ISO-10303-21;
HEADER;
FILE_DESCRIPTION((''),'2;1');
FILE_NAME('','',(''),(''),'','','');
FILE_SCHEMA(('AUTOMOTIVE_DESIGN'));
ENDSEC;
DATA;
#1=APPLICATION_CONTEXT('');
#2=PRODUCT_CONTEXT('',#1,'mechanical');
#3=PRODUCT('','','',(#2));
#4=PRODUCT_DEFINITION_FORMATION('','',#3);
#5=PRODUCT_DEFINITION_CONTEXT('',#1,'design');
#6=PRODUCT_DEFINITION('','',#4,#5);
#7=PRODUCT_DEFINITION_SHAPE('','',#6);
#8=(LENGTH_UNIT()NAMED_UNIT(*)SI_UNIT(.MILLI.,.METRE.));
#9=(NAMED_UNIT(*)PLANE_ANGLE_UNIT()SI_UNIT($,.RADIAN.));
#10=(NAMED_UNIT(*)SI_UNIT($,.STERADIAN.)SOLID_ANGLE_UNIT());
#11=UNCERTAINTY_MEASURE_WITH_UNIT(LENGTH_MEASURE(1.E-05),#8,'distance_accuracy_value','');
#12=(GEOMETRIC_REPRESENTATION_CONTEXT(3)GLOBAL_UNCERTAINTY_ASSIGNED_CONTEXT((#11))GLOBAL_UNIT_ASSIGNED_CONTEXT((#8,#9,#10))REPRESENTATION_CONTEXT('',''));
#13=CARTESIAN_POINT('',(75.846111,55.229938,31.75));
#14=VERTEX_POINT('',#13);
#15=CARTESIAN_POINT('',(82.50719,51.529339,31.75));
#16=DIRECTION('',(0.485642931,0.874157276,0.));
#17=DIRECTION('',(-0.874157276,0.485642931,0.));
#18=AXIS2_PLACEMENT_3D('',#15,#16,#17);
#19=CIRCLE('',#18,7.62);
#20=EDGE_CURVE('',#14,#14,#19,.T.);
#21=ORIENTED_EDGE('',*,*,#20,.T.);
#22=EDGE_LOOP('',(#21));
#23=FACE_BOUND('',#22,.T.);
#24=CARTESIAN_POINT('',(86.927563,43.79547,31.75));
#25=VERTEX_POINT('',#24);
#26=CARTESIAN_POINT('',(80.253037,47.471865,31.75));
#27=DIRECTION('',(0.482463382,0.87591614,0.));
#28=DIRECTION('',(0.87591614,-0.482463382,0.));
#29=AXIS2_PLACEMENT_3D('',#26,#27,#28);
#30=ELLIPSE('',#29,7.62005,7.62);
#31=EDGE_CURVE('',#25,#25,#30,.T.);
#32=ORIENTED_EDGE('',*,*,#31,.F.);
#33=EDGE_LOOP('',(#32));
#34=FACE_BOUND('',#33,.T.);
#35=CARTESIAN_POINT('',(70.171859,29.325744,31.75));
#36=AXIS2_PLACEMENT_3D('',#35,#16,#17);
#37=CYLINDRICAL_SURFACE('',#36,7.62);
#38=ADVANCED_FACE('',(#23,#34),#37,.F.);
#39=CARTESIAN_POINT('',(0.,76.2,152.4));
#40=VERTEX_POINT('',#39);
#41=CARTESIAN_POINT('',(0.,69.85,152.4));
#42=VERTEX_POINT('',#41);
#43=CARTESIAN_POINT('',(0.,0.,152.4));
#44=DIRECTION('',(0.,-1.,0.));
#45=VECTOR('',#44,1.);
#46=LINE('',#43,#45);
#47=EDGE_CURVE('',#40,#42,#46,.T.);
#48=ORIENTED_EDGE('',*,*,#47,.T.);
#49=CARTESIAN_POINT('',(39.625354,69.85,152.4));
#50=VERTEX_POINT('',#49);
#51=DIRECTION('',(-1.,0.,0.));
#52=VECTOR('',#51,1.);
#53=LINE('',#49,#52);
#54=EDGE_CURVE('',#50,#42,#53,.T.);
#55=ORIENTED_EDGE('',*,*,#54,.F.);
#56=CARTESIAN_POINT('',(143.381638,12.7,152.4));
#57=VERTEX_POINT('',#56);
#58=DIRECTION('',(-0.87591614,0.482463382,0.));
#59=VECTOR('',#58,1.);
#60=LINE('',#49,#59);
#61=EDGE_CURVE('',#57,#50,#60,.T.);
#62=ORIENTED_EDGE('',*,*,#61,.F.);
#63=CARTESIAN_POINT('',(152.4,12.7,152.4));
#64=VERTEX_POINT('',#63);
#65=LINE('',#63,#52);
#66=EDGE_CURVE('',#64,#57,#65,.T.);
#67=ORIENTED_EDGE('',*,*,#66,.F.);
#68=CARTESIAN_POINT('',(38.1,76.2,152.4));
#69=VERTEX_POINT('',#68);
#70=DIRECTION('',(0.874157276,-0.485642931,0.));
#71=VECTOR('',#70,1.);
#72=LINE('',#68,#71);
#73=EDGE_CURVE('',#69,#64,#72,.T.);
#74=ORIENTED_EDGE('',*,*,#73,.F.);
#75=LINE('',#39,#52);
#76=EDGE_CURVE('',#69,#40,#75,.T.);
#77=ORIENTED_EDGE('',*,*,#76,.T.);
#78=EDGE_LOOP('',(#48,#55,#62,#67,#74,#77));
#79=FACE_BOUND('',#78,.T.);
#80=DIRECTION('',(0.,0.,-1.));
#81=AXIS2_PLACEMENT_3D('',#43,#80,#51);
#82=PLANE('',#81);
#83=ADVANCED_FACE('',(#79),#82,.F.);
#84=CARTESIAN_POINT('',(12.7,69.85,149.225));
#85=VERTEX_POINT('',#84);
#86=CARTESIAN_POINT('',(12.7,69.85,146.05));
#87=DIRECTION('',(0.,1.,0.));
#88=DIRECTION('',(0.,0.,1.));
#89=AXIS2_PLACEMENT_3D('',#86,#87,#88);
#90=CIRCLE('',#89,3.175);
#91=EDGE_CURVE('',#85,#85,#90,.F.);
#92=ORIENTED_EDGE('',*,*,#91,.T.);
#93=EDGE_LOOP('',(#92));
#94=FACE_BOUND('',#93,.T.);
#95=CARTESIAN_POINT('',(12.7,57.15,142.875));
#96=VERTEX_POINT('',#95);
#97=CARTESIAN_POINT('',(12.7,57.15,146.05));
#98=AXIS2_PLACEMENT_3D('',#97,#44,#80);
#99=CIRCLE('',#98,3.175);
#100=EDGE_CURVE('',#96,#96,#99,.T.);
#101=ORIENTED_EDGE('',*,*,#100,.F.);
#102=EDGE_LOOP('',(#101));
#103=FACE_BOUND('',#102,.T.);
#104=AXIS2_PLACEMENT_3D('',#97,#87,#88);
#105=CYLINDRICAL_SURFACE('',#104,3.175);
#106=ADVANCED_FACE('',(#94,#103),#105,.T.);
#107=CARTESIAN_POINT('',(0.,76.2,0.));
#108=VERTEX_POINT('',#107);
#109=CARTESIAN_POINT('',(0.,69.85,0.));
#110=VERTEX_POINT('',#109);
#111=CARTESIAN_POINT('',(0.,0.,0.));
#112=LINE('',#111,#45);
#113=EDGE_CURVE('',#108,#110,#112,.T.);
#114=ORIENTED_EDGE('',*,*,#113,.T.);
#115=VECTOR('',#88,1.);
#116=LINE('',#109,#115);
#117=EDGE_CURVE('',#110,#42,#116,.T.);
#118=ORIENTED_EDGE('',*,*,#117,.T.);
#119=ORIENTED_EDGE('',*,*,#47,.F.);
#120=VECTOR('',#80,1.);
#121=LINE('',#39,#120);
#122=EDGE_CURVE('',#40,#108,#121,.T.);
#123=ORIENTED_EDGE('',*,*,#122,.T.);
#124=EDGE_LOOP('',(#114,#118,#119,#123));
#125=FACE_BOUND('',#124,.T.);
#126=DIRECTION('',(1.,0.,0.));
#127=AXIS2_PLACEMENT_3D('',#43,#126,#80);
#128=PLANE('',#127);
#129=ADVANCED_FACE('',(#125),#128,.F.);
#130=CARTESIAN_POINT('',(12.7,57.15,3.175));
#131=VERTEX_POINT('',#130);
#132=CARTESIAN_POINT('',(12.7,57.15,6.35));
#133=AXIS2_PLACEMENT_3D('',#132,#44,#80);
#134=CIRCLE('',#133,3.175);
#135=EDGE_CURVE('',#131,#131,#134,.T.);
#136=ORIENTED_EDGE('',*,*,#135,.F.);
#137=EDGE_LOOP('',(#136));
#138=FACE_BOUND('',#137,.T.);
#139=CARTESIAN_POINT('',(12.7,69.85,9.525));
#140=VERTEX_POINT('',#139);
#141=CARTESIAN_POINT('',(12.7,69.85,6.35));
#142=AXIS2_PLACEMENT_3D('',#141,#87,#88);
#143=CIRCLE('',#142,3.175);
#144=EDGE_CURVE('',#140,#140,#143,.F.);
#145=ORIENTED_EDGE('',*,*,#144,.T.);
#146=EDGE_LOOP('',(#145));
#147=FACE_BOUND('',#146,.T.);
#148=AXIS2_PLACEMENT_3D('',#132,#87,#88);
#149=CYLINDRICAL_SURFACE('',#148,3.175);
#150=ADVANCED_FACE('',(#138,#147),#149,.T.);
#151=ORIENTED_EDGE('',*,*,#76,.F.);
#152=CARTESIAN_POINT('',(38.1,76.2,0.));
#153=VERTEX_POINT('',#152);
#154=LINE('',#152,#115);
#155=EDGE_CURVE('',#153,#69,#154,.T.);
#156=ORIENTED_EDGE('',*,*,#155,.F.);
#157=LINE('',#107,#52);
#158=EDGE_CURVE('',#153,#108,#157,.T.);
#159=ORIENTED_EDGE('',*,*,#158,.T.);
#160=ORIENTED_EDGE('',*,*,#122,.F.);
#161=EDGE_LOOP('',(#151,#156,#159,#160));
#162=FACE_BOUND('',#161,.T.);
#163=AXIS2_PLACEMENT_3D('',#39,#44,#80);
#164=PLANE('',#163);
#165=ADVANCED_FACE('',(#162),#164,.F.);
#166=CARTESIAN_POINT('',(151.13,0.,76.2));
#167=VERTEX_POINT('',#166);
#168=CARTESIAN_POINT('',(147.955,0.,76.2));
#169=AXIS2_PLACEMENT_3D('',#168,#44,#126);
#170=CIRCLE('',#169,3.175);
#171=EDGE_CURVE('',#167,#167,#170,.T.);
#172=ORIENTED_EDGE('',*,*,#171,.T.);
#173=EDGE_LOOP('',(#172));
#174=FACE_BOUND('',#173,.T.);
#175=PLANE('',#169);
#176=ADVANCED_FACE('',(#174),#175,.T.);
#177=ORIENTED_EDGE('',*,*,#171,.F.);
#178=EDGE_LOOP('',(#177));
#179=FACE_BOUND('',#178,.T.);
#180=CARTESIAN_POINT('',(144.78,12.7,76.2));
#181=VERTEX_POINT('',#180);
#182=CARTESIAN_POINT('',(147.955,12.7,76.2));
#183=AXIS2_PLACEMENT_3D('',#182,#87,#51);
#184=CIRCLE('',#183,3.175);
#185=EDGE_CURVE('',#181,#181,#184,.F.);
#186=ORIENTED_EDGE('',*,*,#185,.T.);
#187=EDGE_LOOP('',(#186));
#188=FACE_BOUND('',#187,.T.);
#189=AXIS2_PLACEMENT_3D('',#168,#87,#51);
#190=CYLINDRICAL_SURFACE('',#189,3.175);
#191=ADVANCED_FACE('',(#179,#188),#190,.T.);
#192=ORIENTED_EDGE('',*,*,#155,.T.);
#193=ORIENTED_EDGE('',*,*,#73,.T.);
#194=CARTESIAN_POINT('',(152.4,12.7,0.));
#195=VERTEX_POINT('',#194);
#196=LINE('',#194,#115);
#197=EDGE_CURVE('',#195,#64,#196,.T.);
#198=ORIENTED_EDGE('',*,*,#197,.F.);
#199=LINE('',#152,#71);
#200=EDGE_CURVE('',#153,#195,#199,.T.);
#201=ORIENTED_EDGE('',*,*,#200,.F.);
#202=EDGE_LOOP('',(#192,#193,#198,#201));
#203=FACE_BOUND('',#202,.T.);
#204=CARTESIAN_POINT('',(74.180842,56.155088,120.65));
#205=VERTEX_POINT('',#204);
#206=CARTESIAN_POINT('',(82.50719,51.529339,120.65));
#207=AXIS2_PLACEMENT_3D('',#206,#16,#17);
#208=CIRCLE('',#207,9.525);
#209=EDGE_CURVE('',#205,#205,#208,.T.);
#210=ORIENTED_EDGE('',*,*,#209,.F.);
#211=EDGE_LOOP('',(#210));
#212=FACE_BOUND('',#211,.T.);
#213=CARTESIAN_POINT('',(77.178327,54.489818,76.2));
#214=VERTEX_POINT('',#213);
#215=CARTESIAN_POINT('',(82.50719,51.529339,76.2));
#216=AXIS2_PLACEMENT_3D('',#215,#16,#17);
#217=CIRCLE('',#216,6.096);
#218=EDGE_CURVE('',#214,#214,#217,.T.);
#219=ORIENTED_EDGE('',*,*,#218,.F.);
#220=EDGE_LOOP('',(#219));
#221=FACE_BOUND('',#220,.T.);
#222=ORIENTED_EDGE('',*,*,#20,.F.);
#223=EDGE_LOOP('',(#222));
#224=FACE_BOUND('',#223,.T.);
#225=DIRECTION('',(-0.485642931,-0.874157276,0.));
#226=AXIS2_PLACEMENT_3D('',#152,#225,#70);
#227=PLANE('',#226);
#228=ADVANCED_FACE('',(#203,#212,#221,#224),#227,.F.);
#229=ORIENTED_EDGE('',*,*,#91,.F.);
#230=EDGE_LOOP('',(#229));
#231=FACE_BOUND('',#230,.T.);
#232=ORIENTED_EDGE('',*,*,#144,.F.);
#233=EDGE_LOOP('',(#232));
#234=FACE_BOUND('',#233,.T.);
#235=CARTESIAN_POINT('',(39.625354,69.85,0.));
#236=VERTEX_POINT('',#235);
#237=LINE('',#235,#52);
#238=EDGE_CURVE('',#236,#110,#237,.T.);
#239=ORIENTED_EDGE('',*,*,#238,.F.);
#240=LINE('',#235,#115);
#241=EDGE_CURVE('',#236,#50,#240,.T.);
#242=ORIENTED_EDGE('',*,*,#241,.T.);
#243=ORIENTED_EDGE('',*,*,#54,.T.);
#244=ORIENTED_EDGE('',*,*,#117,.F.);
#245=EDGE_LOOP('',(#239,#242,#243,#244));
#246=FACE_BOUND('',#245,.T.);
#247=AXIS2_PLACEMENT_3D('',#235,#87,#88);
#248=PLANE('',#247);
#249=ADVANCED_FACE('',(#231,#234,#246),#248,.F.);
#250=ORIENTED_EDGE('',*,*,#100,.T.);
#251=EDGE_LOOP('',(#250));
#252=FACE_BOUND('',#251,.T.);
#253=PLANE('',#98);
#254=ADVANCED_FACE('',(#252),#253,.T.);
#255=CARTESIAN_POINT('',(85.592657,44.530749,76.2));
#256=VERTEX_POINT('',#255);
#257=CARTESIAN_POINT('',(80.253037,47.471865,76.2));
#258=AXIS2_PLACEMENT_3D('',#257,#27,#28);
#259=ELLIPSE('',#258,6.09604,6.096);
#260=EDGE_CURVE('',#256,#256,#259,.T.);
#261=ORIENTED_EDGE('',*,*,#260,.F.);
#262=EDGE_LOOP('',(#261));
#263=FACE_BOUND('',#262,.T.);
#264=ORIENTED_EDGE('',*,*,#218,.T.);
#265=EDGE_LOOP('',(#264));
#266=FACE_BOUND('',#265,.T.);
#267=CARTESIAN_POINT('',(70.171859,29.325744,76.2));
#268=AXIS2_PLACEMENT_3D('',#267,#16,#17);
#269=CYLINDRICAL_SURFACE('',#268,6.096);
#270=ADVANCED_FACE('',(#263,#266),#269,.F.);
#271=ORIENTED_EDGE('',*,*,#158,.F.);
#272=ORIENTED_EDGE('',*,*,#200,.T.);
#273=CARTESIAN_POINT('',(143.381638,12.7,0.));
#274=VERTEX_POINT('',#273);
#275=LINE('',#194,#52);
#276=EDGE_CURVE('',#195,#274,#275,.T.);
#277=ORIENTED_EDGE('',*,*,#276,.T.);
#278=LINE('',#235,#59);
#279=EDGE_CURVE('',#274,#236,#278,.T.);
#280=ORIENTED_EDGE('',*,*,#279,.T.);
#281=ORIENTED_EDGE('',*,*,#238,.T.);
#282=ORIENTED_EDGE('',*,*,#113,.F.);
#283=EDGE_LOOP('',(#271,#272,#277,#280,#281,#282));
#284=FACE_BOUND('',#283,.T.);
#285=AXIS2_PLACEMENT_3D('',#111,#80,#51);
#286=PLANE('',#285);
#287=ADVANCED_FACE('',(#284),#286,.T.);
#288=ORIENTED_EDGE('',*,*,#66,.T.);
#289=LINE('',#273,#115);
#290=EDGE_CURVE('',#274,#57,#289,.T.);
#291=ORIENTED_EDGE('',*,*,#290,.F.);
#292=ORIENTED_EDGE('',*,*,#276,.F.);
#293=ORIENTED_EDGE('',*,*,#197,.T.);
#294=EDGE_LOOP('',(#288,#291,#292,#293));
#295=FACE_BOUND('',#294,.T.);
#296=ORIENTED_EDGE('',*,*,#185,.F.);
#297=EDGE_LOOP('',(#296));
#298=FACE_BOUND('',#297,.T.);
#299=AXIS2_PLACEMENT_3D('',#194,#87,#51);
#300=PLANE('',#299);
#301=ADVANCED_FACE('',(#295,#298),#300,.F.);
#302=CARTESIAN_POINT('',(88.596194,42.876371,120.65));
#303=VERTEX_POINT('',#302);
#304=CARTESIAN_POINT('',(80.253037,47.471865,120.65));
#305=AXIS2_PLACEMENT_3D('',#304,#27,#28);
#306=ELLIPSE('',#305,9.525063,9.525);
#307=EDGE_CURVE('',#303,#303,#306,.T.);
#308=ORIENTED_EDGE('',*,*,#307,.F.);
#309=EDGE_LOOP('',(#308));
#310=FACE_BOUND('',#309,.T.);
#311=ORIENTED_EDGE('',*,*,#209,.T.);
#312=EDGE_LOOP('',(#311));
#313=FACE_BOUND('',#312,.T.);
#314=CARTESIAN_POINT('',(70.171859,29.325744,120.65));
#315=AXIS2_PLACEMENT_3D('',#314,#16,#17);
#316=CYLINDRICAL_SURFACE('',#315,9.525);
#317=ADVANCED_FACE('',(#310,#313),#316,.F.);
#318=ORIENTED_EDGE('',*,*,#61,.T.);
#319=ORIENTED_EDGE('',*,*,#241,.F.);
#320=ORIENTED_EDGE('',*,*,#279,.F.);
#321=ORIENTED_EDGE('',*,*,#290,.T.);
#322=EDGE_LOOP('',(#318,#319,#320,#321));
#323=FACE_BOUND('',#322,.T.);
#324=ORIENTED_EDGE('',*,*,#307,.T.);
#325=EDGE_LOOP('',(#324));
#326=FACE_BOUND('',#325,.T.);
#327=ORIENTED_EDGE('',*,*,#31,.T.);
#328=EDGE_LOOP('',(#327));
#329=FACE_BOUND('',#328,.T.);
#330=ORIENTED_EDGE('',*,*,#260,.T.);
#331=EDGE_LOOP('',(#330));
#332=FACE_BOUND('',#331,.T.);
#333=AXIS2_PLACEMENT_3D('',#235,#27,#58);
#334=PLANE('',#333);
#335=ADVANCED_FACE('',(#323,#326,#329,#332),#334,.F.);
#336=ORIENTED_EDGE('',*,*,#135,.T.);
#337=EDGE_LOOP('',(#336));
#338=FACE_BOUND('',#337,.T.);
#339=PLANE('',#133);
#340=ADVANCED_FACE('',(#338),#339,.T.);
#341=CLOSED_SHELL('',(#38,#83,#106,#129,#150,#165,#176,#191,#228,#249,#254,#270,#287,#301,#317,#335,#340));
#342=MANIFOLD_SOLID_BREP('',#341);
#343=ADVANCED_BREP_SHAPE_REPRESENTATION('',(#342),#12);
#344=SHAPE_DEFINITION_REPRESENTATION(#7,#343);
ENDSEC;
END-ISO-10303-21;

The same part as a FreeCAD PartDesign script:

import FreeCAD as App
import Part
import Sketcher

V = App.Vector
Q = App.Units.Quantity


def add_polygon(sketch, points):
    """Adds a closed chain of lines whose ends are joined by coincident constraints."""
    first, n = sketch.GeometryCount, len(points)
    for a, b in zip(points, points[1:] + points[:1]):
        sketch.addGeometry(Part.LineSegment(App.Vector(*a, 0), App.Vector(*b, 0)), False)
    for i in range(n):
        sketch.addConstraint(Sketcher.Constraint("Coincident", first + i, 2, first + (i + 1) % n, 1))

doc = App.newDocument("Part")
body = doc.addObject("PartDesign::Body", "Body")

# Sketch on XY plane
sketch1 = doc.addObject("Sketcher::SketchObject", "Sketch")
body.addObject(sketch1)
sketch1.AttachmentSupport = (doc.XY_Plane, [""])
sketch1.MapMode = "FlatFace"
add_polygon(sketch1, [(0, 76), (0, 0), (152, 0), (152, 76)])  # lines 0-3
sketch1.addConstraint(Sketcher.Constraint("Vertical", 0))
sketch1.addConstraint(Sketcher.Constraint("Horizontal", 1))
sketch1.addConstraint(Sketcher.Constraint("Vertical", 2))
sketch1.addConstraint(Sketcher.Constraint("Horizontal", 3))
sketch1.addConstraint(Sketcher.Constraint("Coincident", 0, 2, -1, 1))
sketch1.addConstraint(Sketcher.Constraint("DistanceX", 1, 1, 1, 2, Q("6 in")))
sketch1.addConstraint(Sketcher.Constraint("DistanceY", 0, 2, 0, 1, Q("3 in")))
pad1 = doc.addObject("PartDesign::Pad", "Pad")
body.addObject(pad1)
pad1.Profile = sketch1
pad1.Length = Q("6 in")

# Sketch on XY plane
sketch2 = doc.addObject("Sketcher::SketchObject", "Sketch001")
body.addObject(sketch2)
sketch2.AttachmentSupport = (doc.XY_Plane, [""])
sketch2.MapMode = "FlatFace"
sketch2.AttachmentOffset = App.Placement(V(0, 0, 6 * 25.4), App.Rotation())
add_polygon(sketch2, [(152, 76), (38, 76), (152, 13)])  # lines 0-2
sketch2.addConstraint(Sketcher.Constraint("Horizontal", 0))
sketch2.addConstraint(Sketcher.Constraint("Vertical", 2))
sketch2.addConstraint(Sketcher.Constraint("DistanceX", 0, 2, 0, 1, Q("4.5 in")))
sketch2.addConstraint(Sketcher.Constraint("DistanceY", 2, 1, 2, 2, Q("2.5 in")))
sketch2.addConstraint(Sketcher.Constraint("DistanceY", -1, 1, 0, 2, Q("3 in")))
sketch2.addConstraint(Sketcher.Constraint("DistanceX", -1, 1, 1, 2, Q("6 in")))
pocket1 = doc.addObject("PartDesign::Pocket", "Pocket")
body.addObject(pocket1)
pocket1.Profile = sketch2
pocket1.Length = Q("6 in")

# Sketch on XY plane
sketch3 = doc.addObject("Sketcher::SketchObject", "Sketch002")
body.addObject(sketch3)
sketch3.AttachmentSupport = (doc.XY_Plane, [""])
sketch3.MapMode = "FlatFace"
sketch3.AttachmentOffset = App.Placement(V(0, 0, 6 * 25.4), App.Rotation())
add_polygon(sketch3, [(146, 11), (40, 70), (0, 70), (0, 0), (146, 0)])  # lines 0-4
sketch3.addConstraint(Sketcher.Constraint("Horizontal", 1))
sketch3.addConstraint(Sketcher.Constraint("Vertical", 2))
sketch3.addConstraint(Sketcher.Constraint("Horizontal", 3))
sketch3.addConstraint(Sketcher.Constraint("Vertical", 4))
sketch3.addConstraint(Sketcher.Constraint("Coincident", 2, 2, -1, 1))
sketch3.addConstraint(Sketcher.Constraint("DistanceX", 3, 1, 3, 2, Q("5.75 in")))
sketch3.addConstraint(Sketcher.Constraint("DistanceY", 2, 2, 2, 1, Q("2.75 in")))
sketch3.addConstraint(Sketcher.Constraint("DistanceY", 4, 1, 4, 2, Q("11.230239 mm")))
sketch3.addConstraint(Sketcher.Constraint("DistanceX", 1, 2, 1, 1, Q("39.625354 mm")))
pocket2 = doc.addObject("PartDesign::Pocket", "Pocket001")
body.addObject(pocket2)
pocket2.Profile = sketch3
pocket2.Length = Q("6 in")

# Sketch on an angled plane
sketch4 = doc.addObject("Sketcher::SketchObject", "Sketch003")
body.addObject(sketch4)
sketch4.Placement = App.Placement(V(41.334906, 74.40283, 0), App.Rotation(V(0.874157276, -0.485642931, 0), V(0, 0, -1), V(0.485642931, 0.874157276, 0), "ZXY"))
sketch4.addGeometry(Part.Circle(V(47, -121, 0), V(0, 0, 1), 10), False)
sketch4.addGeometry(Part.Circle(V(47, -76, 0), V(0, 0, 1), 6), False)
sketch4.addGeometry(Part.Circle(V(47, -32, 0), V(0, 0, 1), 8), False)
sketch4.addConstraint(Sketcher.Constraint("Vertical", 0, 3, 1, 3))
sketch4.addConstraint(Sketcher.Constraint("Vertical", 1, 3, 2, 3))
sketch4.addConstraint(Sketcher.Constraint("Diameter", 2, Q("0.6 in")))
sketch4.addConstraint(Sketcher.Constraint("Diameter", 0, Q("0.75 in")))
sketch4.addConstraint(Sketcher.Constraint("Diameter", 1, Q("0.48 in")))
sketch4.addConstraint(Sketcher.Constraint("DistanceY", 1, 3, -1, 1, Q("3 in")))
sketch4.addConstraint(Sketcher.Constraint("DistanceY", 0, 3, 2, 3, Q("3.5 in")))
sketch4.addConstraint(Sketcher.Constraint("DistanceY", 0, 3, -1, 1, Q("4.75 in")))
sketch4.addConstraint(Sketcher.Constraint("DistanceX", -1, 1, 0, 3, Q("47.099401 mm")))
pocket3 = doc.addObject("PartDesign::Pocket", "Pocket002")
body.addObject(pocket3)
pocket3.Profile = sketch4
pocket3.Length = Q("1 in")

# Sketch on XZ plane
sketch5 = doc.addObject("Sketcher::SketchObject", "Sketch004")
body.addObject(sketch5)
sketch5.AttachmentSupport = (doc.XZ_Plane, [""])
sketch5.MapMode = "FlatFace"
sketch5.AttachmentOffset = App.Placement(V(0, 0, -2.75 * 25.4), App.Rotation())
sketch5.addGeometry(Part.Circle(V(12.7, 6.3, 0), V(0, 0, 1), 3.2), False)
sketch5.addGeometry(Part.Circle(V(12.7, 146.1, 0), V(0, 0, 1), 3.2), False)
sketch5.addConstraint(Sketcher.Constraint("Equal", 0, 1))
sketch5.addConstraint(Sketcher.Constraint("Vertical", 0, 3, 1, 3))
sketch5.addConstraint(Sketcher.Constraint("Diameter", 0, Q("0.25 in")))
sketch5.addConstraint(Sketcher.Constraint("DistanceX", -1, 1, 0, 3, Q("0.5 in")))
sketch5.addConstraint(Sketcher.Constraint("DistanceY", 0, 3, 1, 3, Q("5.5 in")))
sketch5.addConstraint(Sketcher.Constraint("DistanceY", -1, 1, 0, 3, Q("0.25 in")))
pad2 = doc.addObject("PartDesign::Pad", "Pad001")
body.addObject(pad2)
pad2.Profile = sketch5
pad2.Length = Q("0.5 in")

# Sketch on XY plane
sketch6 = doc.addObject("Sketcher::SketchObject", "Sketch005")
body.addObject(sketch6)
sketch6.AttachmentSupport = (doc.XY_Plane, [""])
sketch6.MapMode = "FlatFace"
sketch6.AttachmentOffset = App.Placement(V(0, 0, 6 * 25.4), App.Rotation())
add_polygon(sketch6, [(143, 13), (143, 0), (152, 0), (152, 13)])  # lines 0-3
sketch6.addConstraint(Sketcher.Constraint("Vertical", 0))
sketch6.addConstraint(Sketcher.Constraint("Horizontal", 1))
sketch6.addConstraint(Sketcher.Constraint("Vertical", 2))
sketch6.addConstraint(Sketcher.Constraint("Horizontal", 3))
sketch6.addConstraint(Sketcher.Constraint("PointOnObject", 0, 2, -1))
sketch6.addConstraint(Sketcher.Constraint("DistanceY", 0, 2, 0, 1, Q("0.5 in")))
sketch6.addConstraint(Sketcher.Constraint("DistanceX", -1, 1, 1, 2, Q("6 in")))
sketch6.addConstraint(Sketcher.Constraint("DistanceX", 1, 1, 1, 2, Q("9.018362 mm")))
pocket4 = doc.addObject("PartDesign::Pocket", "Pocket003")
body.addObject(pocket4)
pocket4.Profile = sketch6
pocket4.Length = Q("6 in")

# Sketch on XZ plane
sketch7 = doc.addObject("Sketcher::SketchObject", "Sketch006")
body.addObject(sketch7)
sketch7.AttachmentSupport = (doc.XZ_Plane, [""])
sketch7.MapMode = "FlatFace"
sketch7.AttachmentOffset = App.Placement(V(0, 0, -0.5 * 25.4), App.Rotation())
sketch7.addGeometry(Part.Circle(V(148, 76.2, 0), V(0, 0, 1), 3.2), False)
sketch7.addConstraint(Sketcher.Constraint("Diameter", 0, Q("0.25 in")))
sketch7.addConstraint(Sketcher.Constraint("DistanceY", -1, 1, 0, 3, Q("3 in")))
sketch7.addConstraint(Sketcher.Constraint("DistanceX", -1, 1, 0, 3, Q("5.825 in")))
pad3 = doc.addObject("PartDesign::Pad", "Pad002")
body.addObject(pad3)
pad3.Profile = sketch7
pad3.Length = Q("0.5 in")

doc.recompute()
